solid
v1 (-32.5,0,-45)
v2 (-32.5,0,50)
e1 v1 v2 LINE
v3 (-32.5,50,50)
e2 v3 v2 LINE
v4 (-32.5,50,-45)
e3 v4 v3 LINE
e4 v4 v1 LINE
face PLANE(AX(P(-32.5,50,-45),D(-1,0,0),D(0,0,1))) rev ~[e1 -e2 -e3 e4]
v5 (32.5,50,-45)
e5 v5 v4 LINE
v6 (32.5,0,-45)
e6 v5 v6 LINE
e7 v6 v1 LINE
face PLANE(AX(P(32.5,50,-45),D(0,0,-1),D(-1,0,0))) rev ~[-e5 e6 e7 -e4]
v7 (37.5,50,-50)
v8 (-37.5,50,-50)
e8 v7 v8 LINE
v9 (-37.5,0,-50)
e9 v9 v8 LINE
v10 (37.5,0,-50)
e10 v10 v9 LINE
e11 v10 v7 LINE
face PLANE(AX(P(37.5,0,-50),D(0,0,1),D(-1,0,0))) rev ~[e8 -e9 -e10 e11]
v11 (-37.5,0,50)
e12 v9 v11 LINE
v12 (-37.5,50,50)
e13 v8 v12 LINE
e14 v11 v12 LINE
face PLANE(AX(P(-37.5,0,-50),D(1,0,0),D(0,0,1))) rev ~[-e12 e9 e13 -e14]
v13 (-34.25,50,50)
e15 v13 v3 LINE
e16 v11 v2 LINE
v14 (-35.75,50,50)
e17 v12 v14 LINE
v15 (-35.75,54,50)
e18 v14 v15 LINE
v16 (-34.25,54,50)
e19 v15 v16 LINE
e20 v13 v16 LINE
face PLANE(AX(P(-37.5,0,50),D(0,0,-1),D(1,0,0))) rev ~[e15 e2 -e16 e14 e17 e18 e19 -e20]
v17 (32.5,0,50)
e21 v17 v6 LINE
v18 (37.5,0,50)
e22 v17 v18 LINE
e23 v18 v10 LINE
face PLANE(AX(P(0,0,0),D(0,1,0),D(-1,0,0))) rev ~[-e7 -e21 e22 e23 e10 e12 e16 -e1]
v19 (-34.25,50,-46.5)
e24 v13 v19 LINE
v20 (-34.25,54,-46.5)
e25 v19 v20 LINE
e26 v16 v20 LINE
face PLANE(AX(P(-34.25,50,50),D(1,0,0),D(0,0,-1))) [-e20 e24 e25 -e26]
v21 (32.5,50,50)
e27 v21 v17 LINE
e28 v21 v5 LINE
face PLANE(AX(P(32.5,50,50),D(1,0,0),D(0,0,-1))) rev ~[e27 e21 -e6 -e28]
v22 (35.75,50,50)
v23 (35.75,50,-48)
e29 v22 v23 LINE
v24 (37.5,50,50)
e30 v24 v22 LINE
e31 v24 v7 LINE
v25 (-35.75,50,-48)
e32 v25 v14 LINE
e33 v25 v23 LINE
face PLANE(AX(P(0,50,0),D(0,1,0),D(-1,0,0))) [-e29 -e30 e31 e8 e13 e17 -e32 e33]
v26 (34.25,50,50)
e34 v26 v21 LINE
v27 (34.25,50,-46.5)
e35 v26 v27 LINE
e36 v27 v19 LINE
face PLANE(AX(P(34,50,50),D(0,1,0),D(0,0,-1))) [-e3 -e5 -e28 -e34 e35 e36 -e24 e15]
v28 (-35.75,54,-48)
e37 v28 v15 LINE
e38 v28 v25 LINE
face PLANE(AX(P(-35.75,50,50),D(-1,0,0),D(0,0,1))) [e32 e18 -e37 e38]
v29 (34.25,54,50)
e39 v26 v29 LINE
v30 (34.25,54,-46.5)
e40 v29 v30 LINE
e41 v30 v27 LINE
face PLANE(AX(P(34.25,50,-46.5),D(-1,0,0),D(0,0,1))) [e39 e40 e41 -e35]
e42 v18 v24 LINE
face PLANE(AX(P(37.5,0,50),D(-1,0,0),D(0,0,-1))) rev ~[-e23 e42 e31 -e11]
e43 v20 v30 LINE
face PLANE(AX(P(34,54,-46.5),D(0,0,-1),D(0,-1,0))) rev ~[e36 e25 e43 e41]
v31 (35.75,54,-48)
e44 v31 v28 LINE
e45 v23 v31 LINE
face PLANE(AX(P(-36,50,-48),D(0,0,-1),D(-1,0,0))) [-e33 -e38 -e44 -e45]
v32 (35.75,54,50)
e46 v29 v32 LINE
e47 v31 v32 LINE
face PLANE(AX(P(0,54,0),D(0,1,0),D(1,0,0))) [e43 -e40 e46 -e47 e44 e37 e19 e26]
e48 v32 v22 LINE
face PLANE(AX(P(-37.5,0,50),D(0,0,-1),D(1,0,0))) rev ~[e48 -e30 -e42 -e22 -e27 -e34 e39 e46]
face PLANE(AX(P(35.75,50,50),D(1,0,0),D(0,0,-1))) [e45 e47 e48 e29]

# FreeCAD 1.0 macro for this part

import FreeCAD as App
import Part
import Sketcher
Q = App.Units.Quantity

doc = App.newDocument("Part")
body = doc.addObject("PartDesign::Body", "Body")

# Sketch on XZ plane
sketch1 = body.newObject("Sketcher::SketchObject", "Sketch")
sketch1.AttachmentSupport = (doc.getObject("XZ_Plane"), [""])
sketch1.MapMode = "FlatFace"
sketch1.addGeometry(Part.LineSegment(App.Vector(38, 50, 0), App.Vector(38, -50, 0)), False)
sketch1.addGeometry(Part.LineSegment(App.Vector(38, -50, 0), App.Vector(-38, -50, 0)), False)
sketch1.addGeometry(Part.LineSegment(App.Vector(-38, -50, 0), App.Vector(-38, 50, 0)), False)
sketch1.addGeometry(Part.LineSegment(App.Vector(-38, 50, 0), App.Vector(38, 50, 0)), False)
sketch1.addConstraint(Sketcher.Constraint("Coincident", 0, 2, 1, 1))
sketch1.addConstraint(Sketcher.Constraint("Coincident", 1, 2, 2, 1))
sketch1.addConstraint(Sketcher.Constraint("Coincident", 2, 2, 3, 1))
sketch1.addConstraint(Sketcher.Constraint("Coincident", 3, 2, 0, 1))
sketch1.addConstraint(Sketcher.Constraint("Vertical", 0))
sketch1.addConstraint(Sketcher.Constraint("Horizontal", 1))
sketch1.addConstraint(Sketcher.Constraint("Vertical", 2))
sketch1.addConstraint(Sketcher.Constraint("Horizontal", 3))
sketch1.addConstraint(Sketcher.Constraint("Symmetric", 0, 2, 2, 2, -1, 1))
sketch1.addConstraint(Sketcher.Constraint("DistanceX", 1, 2, 1, 1, Q("75 mm")))
sketch1.addConstraint(Sketcher.Constraint("DistanceY", 0, 2, 0, 1, Q("100 mm")))
pad1 = body.newObject("PartDesign::Pad", "Pad")
pad1.Profile = sketch1
pad1.Length = 50
pad1.Reversed = True

# Sketch on XZ plane
sketch2 = body.newObject("Sketcher::SketchObject", "Sketch001")
sketch2.AttachmentSupport = (doc.getObject("XZ_Plane"), [""])
sketch2.MapMode = "FlatFace"
sketch2.AttachmentOffset = App.Placement(App.Vector(0, 0, -50), App.Rotation())
sketch2.addGeometry(Part.LineSegment(App.Vector(-32, -45, 0), App.Vector(-32, 50, 0)), False)
sketch2.addGeometry(Part.LineSegment(App.Vector(-32, 50, 0), App.Vector(32, 50, 0)), False)
sketch2.addGeometry(Part.LineSegment(App.Vector(32, 50, 0), App.Vector(32, -45, 0)), False)
sketch2.addGeometry(Part.LineSegment(App.Vector(32, -45, 0), App.Vector(-32, -45, 0)), False)
sketch2.addConstraint(Sketcher.Constraint("Coincident", 0, 2, 1, 1))
sketch2.addConstraint(Sketcher.Constraint("Coincident", 1, 2, 2, 1))
sketch2.addConstraint(Sketcher.Constraint("Coincident", 2, 2, 3, 1))
sketch2.addConstraint(Sketcher.Constraint("Coincident", 3, 2, 0, 1))
sketch2.addConstraint(Sketcher.Constraint("Vertical", 0))
sketch2.addConstraint(Sketcher.Constraint("Horizontal", 1))
sketch2.addConstraint(Sketcher.Constraint("Vertical", 2))
sketch2.addConstraint(Sketcher.Constraint("Horizontal", 3))
sketch2.addConstraint(Sketcher.Constraint("DistanceX", 1, 1, 1, 2, Q("65 mm")))
sketch2.addConstraint(Sketcher.Constraint("DistanceY", 0, 1, 0, 2, Q("95 mm")))
sketch2.addConstraint(Sketcher.Constraint("DistanceY", -1, 1, 0, 2, Q("50 mm")))
sketch2.addConstraint(Sketcher.Constraint("DistanceX", 0, 2, -1, 1, Q("32.5 mm")))
pocket1 = body.newObject("PartDesign::Pocket", "Pocket")
pocket1.Profile = sketch2
pocket1.Length = 50
pocket1.Reversed = True

# Sketch on XZ plane
sketch3 = body.newObject("Sketcher::SketchObject", "Sketch002")
sketch3.AttachmentSupport = (doc.getObject("XZ_Plane"), [""])
sketch3.MapMode = "FlatFace"
sketch3.AttachmentOffset = App.Placement(App.Vector(0, 0, -50), App.Rotation())
sketch3.addGeometry(Part.LineSegment(App.Vector(-36, 50, 0), App.Vector(-34, 50, 0)), False)
sketch3.addGeometry(Part.LineSegment(App.Vector(-34, 50, 0), App.Vector(-34, -46.5, 0)), False)
sketch3.addGeometry(Part.LineSegment(App.Vector(-34, -46.5, 0), App.Vector(34, -46.5, 0)), False)
sketch3.addGeometry(Part.LineSegment(App.Vector(34, -46.5, 0), App.Vector(34, 50, 0)), False)
sketch3.addGeometry(Part.LineSegment(App.Vector(34, 50, 0), App.Vector(36, 50, 0)), False)
sketch3.addGeometry(Part.LineSegment(App.Vector(36, 50, 0), App.Vector(36, -48.5, 0)), False)
sketch3.addGeometry(Part.LineSegment(App.Vector(36, -48.5, 0), App.Vector(-36, -48.5, 0)), False)
sketch3.addGeometry(Part.LineSegment(App.Vector(-36, -48.5, 0), App.Vector(-36, 50, 0)), False)
sketch3.addConstraint(Sketcher.Constraint("Coincident", 0, 2, 1, 1))
sketch3.addConstraint(Sketcher.Constraint("Coincident", 1, 2, 2, 1))
sketch3.addConstraint(Sketcher.Constraint("Coincident", 2, 2, 3, 1))
sketch3.addConstraint(Sketcher.Constraint("Coincident", 3, 2, 4, 1))
sketch3.addConstraint(Sketcher.Constraint("Coincident", 4, 2, 5, 1))
sketch3.addConstraint(Sketcher.Constraint("Coincident", 5, 2, 6, 1))
sketch3.addConstraint(Sketcher.Constraint("Coincident", 6, 2, 7, 1))
sketch3.addConstraint(Sketcher.Constraint("Coincident", 7, 2, 0, 1))
sketch3.addConstraint(Sketcher.Constraint("Horizontal", 0))
sketch3.addConstraint(Sketcher.Constraint("Vertical", 1))
sketch3.addConstraint(Sketcher.Constraint("Horizontal", 2))
sketch3.addConstraint(Sketcher.Constraint("Vertical", 3))
sketch3.addConstraint(Sketcher.Constraint("Horizontal", 4))
sketch3.addConstraint(Sketcher.Constraint("Vertical", 5))
sketch3.addConstraint(Sketcher.Constraint("Horizontal", 6))
sketch3.addConstraint(Sketcher.Constraint("Vertical", 7))
sketch3.addConstraint(Sketcher.Constraint("Symmetric", 0, 2, 3, 2, -2))
sketch3.addConstraint(Sketcher.Constraint("Equal", 0, 4))
sketch3.addConstraint(Sketcher.Constraint("DistanceX", 0, 1, 0, 2, Q("2 mm")))
sketch3.addConstraint(Sketcher.Constraint("DistanceX", 6, 2, 6, 1, Q("72 mm")))
sketch3.addConstraint(Sketcher.Constraint("DistanceY", 5, 2, 5, 1, Q("98.5 mm")))
sketch3.addConstraint(Sketcher.Constraint("DistanceY", 5, 2, 2, 2, Q("2 mm")))
sketch3.addConstraint(Sketcher.Constraint("DistanceY", -1, 1, 0, 2, Q("50 mm")))
pad2 = body.newObject("PartDesign::Pad", "Pad001")
pad2.Profile = sketch3
pad2.Length = 4
pad2.Reversed = True

# Sketch on YZ plane
sketch4 = body.newObject("Sketcher::SketchObject", "Sketch003")
sketch4.AttachmentSupport = (doc.getObject("YZ_Plane"), [""])
sketch4.MapMode = "FlatFace"
sketch4.AttachmentOffset = App.Placement(App.Vector(0, 0, 36), App.Rotation())
sketch4.addGeometry(Part.LineSegment(App.Vector(54, 50, 0), App.Vector(50, 50, 0)), False)
sketch4.addGeometry(Part.LineSegment(App.Vector(50, 50, 0), App.Vector(50, -48.5, 0)), False)
sketch4.addGeometry(Part.LineSegment(App.Vector(50, -48.5, 0), App.Vector(54, -48.5, 0)), False)
sketch4.addGeometry(Part.LineSegment(App.Vector(54, -48.5, 0), App.Vector(54, 50, 0)), False)
sketch4.addConstraint(Sketcher.Constraint("Coincident", 0, 2, 1, 1))
sketch4.addConstraint(Sketcher.Constraint("Coincident", 1, 2, 2, 1))
sketch4.addConstraint(Sketcher.Constraint("Coincident", 2, 2, 3, 1))
sketch4.addConstraint(Sketcher.Constraint("Coincident", 3, 2, 0, 1))
sketch4.addConstraint(Sketcher.Constraint("Horizontal", 0))
sketch4.addConstraint(Sketcher.Constraint("Vertical", 1))
sketch4.addConstraint(Sketcher.Constraint("Horizontal", 2))
sketch4.addConstraint(Sketcher.Constraint("Vertical", 3))
sketch4.addConstraint(Sketcher.Constraint("DistanceX", 0, 2, 0, 1, Q("4 mm")))
sketch4.addConstraint(Sketcher.Constraint("DistanceY", 1, 2, 1, 1, Q("98.5 mm")))
sketch4.addConstraint(Sketcher.Constraint("DistanceX", -1, 1, 0, 2, Q("50 mm")))
sketch4.addConstraint(Sketcher.Constraint("DistanceY", -1, 1, 0, 2, Q("50 mm")))
pocket2 = body.newObject("PartDesign::Pocket", "Pocket001")
pocket2.Profile = sketch4
pocket2.Length = 0.25

# Sketch on YZ plane
sketch5 = body.newObject("Sketcher::SketchObject", "Sketch004")
sketch5.AttachmentSupport = (doc.getObject("YZ_Plane"), [""])
sketch5.MapMode = "FlatFace"
sketch5.AttachmentOffset = App.Placement(App.Vector(0, 0, 34), App.Rotation())
sketch5.addGeometry(Part.LineSegment(App.Vector(50, -46.5, 0), App.Vector(50, 50, 0)), False)
sketch5.addGeometry(Part.LineSegment(App.Vector(50, 50, 0), App.Vector(54, 50, 0)), False)
sketch5.addGeometry(Part.LineSegment(App.Vector(54, 50, 0), App.Vector(54, -46.5, 0)), False)
sketch5.addGeometry(Part.LineSegment(App.Vector(54, -46.5, 0), App.Vector(50, -46.5, 0)), False)
sketch5.addConstraint(Sketcher.Constraint("Coincident", 0, 2, 1, 1))
sketch5.addConstraint(Sketcher.Constraint("Coincident", 1, 2, 2, 1))
sketch5.addConstraint(Sketcher.Constraint("Coincident", 2, 2, 3, 1))
sketch5.addConstraint(Sketcher.Constraint("Coincident", 3, 2, 0, 1))
sketch5.addConstraint(Sketcher.Constraint("Vertical", 0))
sketch5.addConstraint(Sketcher.Constraint("Horizontal", 1))
sketch5.addConstraint(Sketcher.Constraint("Vertical", 2))
sketch5.addConstraint(Sketcher.Constraint("Horizontal", 3))
sketch5.addConstraint(Sketcher.Constraint("DistanceX", 1, 1, 1, 2, Q("4 mm")))
sketch5.addConstraint(Sketcher.Constraint("DistanceY", 0, 1, 0, 2, Q("96.5 mm")))
sketch5.addConstraint(Sketcher.Constraint("DistanceX", -1, 1, 0, 2, Q("50 mm")))
sketch5.addConstraint(Sketcher.Constraint("DistanceY", -1, 1, 0, 2, Q("50 mm")))
pocket3 = body.newObject("PartDesign::Pocket", "Pocket002")
pocket3.Profile = sketch5
pocket3.Length = 0.25
pocket3.Reversed = True

# Sketch on XY plane
sketch6 = body.newObject("Sketcher::SketchObject", "Sketch005")
sketch6.AttachmentSupport = (doc.getObject("XY_Plane"), [""])
sketch6.MapMode = "FlatFace"
sketch6.AttachmentOffset = App.Placement(App.Vector(0, 0, -48.5), App.Rotation())
sketch6.addGeometry(Part.LineSegment(App.Vector(-36, 54, 0), App.Vector(35.8, 54, 0)), False)
sketch6.addGeometry(Part.LineSegment(App.Vector(35.8, 54, 0), App.Vector(35.8, 50, 0)), False)
sketch6.addGeometry(Part.LineSegment(App.Vector(35.8, 50, 0), App.Vector(-36, 50, 0)), False)
sketch6.addGeometry(Part.LineSegment(App.Vector(-36, 50, 0), App.Vector(-36, 54, 0)), False)
sketch6.addConstraint(Sketcher.Constraint("Coincident", 0, 2, 1, 1))
sketch6.addConstraint(Sketcher.Constraint("Coincident", 1, 2, 2, 1))
sketch6.addConstraint(Sketcher.Constraint("Coincident", 2, 2, 3, 1))
sketch6.addConstraint(Sketcher.Constraint("Coincident", 3, 2, 0, 1))
sketch6.addConstraint(Sketcher.Constraint("Horizontal", 0))
sketch6.addConstraint(Sketcher.Constraint("Vertical", 1))
sketch6.addConstraint(Sketcher.Constraint("Horizontal", 2))
sketch6.addConstraint(Sketcher.Constraint("Vertical", 3))
sketch6.addConstraint(Sketcher.Constraint("DistanceY", 1, 2, 1, 1, Q("4 mm")))
sketch6.addConstraint(Sketcher.Constraint("DistanceY", -1, 1, 0, 2, Q("54 mm")))
sketch6.addConstraint(Sketcher.Constraint("DistanceX", 2, 2, -1, 1, Q("36 mm")))
sketch6.addConstraint(Sketcher.Constraint("DistanceX", 0, 1, 0, 2, Q("71.75 mm")))
pocket4 = body.newObject("PartDesign::Pocket", "Pocket003")
pocket4.Profile = sketch6
pocket4.Length = 0.25
pocket4.Reversed = True

# Sketch on YZ plane
sketch7 = body.newObject("Sketcher::SketchObject", "Sketch006")
sketch7.AttachmentSupport = (doc.getObject("YZ_Plane"), [""])
sketch7.MapMode = "FlatFace"
sketch7.AttachmentOffset = App.Placement(App.Vector(0, 0, -34), App.Rotation())
sketch7.addGeometry(Part.LineSegment(App.Vector(54, 50, 0), App.Vector(50, 50, 0)), False)
sketch7.addGeometry(Part.LineSegment(App.Vector(50, 50, 0), App.Vector(50, -46.5, 0)), False)
sketch7.addGeometry(Part.LineSegment(App.Vector(50, -46.5, 0), App.Vector(54, -46.5, 0)), False)
sketch7.addGeometry(Part.LineSegment(App.Vector(54, -46.5, 0), App.Vector(54, 50, 0)), False)
sketch7.addConstraint(Sketcher.Constraint("Coincident", 0, 2, 1, 1))
sketch7.addConstraint(Sketcher.Constraint("Coincident", 1, 2, 2, 1))
sketch7.addConstraint(Sketcher.Constraint("Coincident", 2, 2, 3, 1))
sketch7.addConstraint(Sketcher.Constraint("Coincident", 3, 2, 0, 1))
sketch7.addConstraint(Sketcher.Constraint("Horizontal", 0))
sketch7.addConstraint(Sketcher.Constraint("Vertical", 1))
sketch7.addConstraint(Sketcher.Constraint("Horizontal", 2))
sketch7.addConstraint(Sketcher.Constraint("Vertical", 3))
sketch7.addConstraint(Sketcher.Constraint("DistanceX", 0, 2, 0, 1, Q("4 mm")))
sketch7.addConstraint(Sketcher.Constraint("DistanceY", 1, 2, 1, 1, Q("96.5 mm")))
sketch7.addConstraint(Sketcher.Constraint("DistanceX", -1, 1, 0, 2, Q("50 mm")))
sketch7.addConstraint(Sketcher.Constraint("DistanceY", -1, 1, 0, 2, Q("50 mm")))
pocket5 = body.newObject("PartDesign::Pocket", "Pocket004")
pocket5.Profile = sketch7
pocket5.Length = 0.25

# Sketch on YZ plane
sketch8 = body.newObject("Sketcher::SketchObject", "Sketch007")
sketch8.AttachmentSupport = (doc.getObject("YZ_Plane"), [""])
sketch8.MapMode = "FlatFace"
sketch8.AttachmentOffset = App.Placement(App.Vector(0, 0, -36), App.Rotation())
sketch8.addGeometry(Part.LineSegment(App.Vector(50, 50, 0), App.Vector(54, 50, 0)), False)
sketch8.addGeometry(Part.LineSegment(App.Vector(54, 50, 0), App.Vector(54, -48.2, 0)), False)
sketch8.addGeometry(Part.LineSegment(App.Vector(54, -48.2, 0), App.Vector(50, -48.2, 0)), False)
sketch8.addGeometry(Part.LineSegment(App.Vector(50, -48.2, 0), App.Vector(50, 50, 0)), False)
sketch8.addConstraint(Sketcher.Constraint("Coincident", 0, 2, 1, 1))
sketch8.addConstraint(Sketcher.Constraint("Coincident", 1, 2, 2, 1))
sketch8.addConstraint(Sketcher.Constraint("Coincident", 2, 2, 3, 1))
sketch8.addConstraint(Sketcher.Constraint("Coincident", 3, 2, 0, 1))
sketch8.addConstraint(Sketcher.Constraint("Horizontal", 0))
sketch8.addConstraint(Sketcher.Constraint("Vertical", 1))
sketch8.addConstraint(Sketcher.Constraint("Horizontal", 2))
sketch8.addConstraint(Sketcher.Constraint("Vertical", 3))
sketch8.addConstraint(Sketcher.Constraint("DistanceX", 0, 1, 0, 2, Q("4 mm")))
sketch8.addConstraint(Sketcher.Constraint("DistanceX", -1, 1, 0, 2, Q("54 mm")))
sketch8.addConstraint(Sketcher.Constraint("DistanceY", -1, 1, 0, 2, Q("50 mm")))
sketch8.addConstraint(Sketcher.Constraint("DistanceY", 1, 2, 1, 1, Q("98.25 mm")))
pocket6 = body.newObject("PartDesign::Pocket", "Pocket005")
pocket6.Profile = sketch8
pocket6.Length = 0.25
pocket6.Reversed = True

# Sketch on XY plane
sketch9 = body.newObject("Sketcher::SketchObject", "Sketch008")
sketch9.AttachmentSupport = (doc.getObject("XY_Plane"), [""])
sketch9.MapMode = "FlatFace"
sketch9.AttachmentOffset = App.Placement(App.Vector(0, 0, -48.25), App.Rotation())
sketch9.addGeometry(Part.LineSegment(App.Vector(-36, 54, 0), App.Vector(36, 54, 0)), False)
sketch9.addGeometry(Part.LineSegment(App.Vector(36, 54, 0), App.Vector(36, 50, 0)), False)
sketch9.addGeometry(Part.LineSegment(App.Vector(36, 50, 0), App.Vector(-36, 50, 0)), False)
sketch9.addGeometry(Part.LineSegment(App.Vector(-36, 50, 0), App.Vector(-36, 54, 0)), False)
sketch9.addConstraint(Sketcher.Constraint("Coincident", 0, 2, 1, 1))
sketch9.addConstraint(Sketcher.Constraint("Coincident", 1, 2, 2, 1))
sketch9.addConstraint(Sketcher.Constraint("Coincident", 2, 2, 3, 1))
sketch9.addConstraint(Sketcher.Constraint("Coincident", 3, 2, 0, 1))
sketch9.addConstraint(Sketcher.Constraint("Horizontal", 0))
sketch9.addConstraint(Sketcher.Constraint("Vertical", 1))
sketch9.addConstraint(Sketcher.Constraint("Horizontal", 2))
sketch9.addConstraint(Sketcher.Constraint("Vertical", 3))
sketch9.addConstraint(Sketcher.Constraint("DistanceX", 0, 1, 0, 2, Q("72 mm")))
sketch9.addConstraint(Sketcher.Constraint("DistanceY", 1, 2, 1, 1, Q("4 mm")))
sketch9.addConstraint(Sketcher.Constraint("DistanceX", -1, 1, 0, 2, Q("36 mm")))
sketch9.addConstraint(Sketcher.Constraint("DistanceY", -1, 1, 0, 2, Q("54 mm")))
pocket7 = body.newObject("PartDesign::Pocket", "Pocket006")
pocket7.Profile = sketch9
pocket7.Length = 0.25
pocket7.Reversed = True

doc.recompute()
